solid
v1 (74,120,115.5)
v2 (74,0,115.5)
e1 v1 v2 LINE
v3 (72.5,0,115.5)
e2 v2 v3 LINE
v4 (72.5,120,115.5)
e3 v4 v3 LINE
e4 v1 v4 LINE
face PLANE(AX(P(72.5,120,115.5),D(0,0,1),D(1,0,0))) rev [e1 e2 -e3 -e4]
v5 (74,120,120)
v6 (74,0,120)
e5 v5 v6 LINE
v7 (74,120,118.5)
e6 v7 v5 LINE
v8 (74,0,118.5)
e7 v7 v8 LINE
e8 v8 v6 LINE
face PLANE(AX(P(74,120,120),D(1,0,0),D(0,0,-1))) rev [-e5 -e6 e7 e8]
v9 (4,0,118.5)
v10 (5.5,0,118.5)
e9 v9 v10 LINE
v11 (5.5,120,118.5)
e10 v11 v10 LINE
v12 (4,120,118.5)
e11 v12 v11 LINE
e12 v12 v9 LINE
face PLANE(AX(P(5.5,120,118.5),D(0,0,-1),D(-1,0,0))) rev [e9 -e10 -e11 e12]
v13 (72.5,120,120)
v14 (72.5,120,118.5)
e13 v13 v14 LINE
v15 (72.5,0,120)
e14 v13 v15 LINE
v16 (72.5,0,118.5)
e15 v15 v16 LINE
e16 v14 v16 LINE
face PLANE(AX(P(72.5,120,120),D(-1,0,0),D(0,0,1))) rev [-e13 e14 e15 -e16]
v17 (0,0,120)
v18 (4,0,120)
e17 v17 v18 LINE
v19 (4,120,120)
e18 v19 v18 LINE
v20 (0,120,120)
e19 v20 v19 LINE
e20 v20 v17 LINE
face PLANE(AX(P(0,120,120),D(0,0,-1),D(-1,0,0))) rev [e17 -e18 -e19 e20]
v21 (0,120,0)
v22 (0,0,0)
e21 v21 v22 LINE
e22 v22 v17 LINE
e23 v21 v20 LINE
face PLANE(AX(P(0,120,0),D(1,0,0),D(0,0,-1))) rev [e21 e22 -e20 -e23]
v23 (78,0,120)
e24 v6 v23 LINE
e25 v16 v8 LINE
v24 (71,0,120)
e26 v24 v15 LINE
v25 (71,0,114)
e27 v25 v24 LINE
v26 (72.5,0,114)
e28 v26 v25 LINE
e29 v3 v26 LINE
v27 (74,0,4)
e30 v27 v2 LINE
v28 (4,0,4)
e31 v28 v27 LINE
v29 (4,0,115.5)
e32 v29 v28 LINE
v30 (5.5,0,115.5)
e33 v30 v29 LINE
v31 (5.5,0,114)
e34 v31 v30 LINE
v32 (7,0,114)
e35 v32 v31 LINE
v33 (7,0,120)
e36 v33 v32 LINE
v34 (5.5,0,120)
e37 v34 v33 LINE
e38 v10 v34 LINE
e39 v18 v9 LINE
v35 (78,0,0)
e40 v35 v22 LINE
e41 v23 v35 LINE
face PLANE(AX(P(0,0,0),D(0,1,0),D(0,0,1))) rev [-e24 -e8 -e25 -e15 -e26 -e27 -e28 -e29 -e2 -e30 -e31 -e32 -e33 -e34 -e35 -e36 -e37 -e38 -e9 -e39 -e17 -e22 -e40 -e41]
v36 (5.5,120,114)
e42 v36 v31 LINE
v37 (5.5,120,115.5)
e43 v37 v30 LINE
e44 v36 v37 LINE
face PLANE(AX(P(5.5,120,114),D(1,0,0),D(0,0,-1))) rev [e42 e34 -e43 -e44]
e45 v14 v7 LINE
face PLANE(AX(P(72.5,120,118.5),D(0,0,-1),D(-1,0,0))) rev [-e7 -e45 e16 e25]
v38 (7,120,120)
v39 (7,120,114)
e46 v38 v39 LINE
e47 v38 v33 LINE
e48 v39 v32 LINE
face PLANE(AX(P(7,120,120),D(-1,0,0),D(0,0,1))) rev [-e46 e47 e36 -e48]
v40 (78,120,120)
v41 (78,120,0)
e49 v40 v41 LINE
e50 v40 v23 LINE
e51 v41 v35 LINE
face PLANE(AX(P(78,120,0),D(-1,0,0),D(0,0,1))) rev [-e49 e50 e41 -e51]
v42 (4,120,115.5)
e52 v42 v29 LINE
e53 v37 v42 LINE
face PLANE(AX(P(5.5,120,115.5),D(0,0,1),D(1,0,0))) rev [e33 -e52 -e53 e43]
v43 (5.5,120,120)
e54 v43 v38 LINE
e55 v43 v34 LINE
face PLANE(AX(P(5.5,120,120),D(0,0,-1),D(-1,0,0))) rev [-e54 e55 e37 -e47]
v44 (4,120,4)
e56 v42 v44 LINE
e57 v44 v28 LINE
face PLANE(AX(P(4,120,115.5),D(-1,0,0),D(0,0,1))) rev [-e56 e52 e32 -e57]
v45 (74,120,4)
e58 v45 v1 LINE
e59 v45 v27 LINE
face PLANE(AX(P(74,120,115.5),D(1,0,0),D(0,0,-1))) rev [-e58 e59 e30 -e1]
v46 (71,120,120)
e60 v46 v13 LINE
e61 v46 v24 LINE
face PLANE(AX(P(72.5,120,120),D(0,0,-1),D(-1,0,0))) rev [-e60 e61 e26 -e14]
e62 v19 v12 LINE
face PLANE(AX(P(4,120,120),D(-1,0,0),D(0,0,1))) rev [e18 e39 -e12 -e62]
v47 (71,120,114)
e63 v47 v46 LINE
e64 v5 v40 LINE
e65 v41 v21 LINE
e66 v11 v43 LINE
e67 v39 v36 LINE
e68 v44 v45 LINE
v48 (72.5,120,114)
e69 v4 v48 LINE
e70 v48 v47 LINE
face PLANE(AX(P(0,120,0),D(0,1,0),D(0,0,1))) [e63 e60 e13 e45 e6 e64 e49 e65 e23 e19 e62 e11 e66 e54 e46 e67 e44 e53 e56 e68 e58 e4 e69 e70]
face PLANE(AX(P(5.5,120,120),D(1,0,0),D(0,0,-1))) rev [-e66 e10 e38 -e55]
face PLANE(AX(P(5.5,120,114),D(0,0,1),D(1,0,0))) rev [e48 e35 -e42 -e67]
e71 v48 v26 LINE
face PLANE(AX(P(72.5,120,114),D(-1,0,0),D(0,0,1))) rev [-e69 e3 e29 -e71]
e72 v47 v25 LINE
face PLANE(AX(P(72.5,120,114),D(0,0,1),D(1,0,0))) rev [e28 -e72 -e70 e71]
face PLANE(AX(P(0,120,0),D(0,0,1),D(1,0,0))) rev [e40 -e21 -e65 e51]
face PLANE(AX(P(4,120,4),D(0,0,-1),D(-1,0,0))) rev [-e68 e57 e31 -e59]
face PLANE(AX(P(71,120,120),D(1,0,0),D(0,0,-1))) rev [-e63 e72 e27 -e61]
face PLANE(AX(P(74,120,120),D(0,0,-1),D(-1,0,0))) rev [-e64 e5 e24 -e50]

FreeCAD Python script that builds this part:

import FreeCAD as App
import Part
import Sketcher
from FreeCAD import Vector
Q = App.Units.Quantity

doc = App.newDocument("Part")
body = doc.addObject("PartDesign::Body", "Body")

# Sketch on XZ plane
sketch1 = doc.addObject("Sketcher::SketchObject", "Sketch")
body.addObject(sketch1)
sketch1.AttachmentSupport = (doc.XZ_Plane, [""])
sketch1.MapMode = "FlatFace"
sketch1.addGeometry([
    Part.LineSegment(Vector(74, 120, 0), Vector(78, 120, 0)),  # 0
    Part.LineSegment(Vector(78, 120, 0), Vector(78, 0, 0)),  # 1
    Part.LineSegment(Vector(78, 0, 0), Vector(0, 0, 0)),  # 2
    Part.LineSegment(Vector(0, 0, 0), Vector(0, 120, 0)),  # 3
    Part.LineSegment(Vector(0, 120, 0), Vector(4, 120, 0)),  # 4
    Part.LineSegment(Vector(4, 120, 0), Vector(4, 118.5, 0)),  # 5
    Part.LineSegment(Vector(4, 118.5, 0), Vector(5.5, 118.5, 0)),  # 6
    Part.LineSegment(Vector(5.5, 118.5, 0), Vector(5.5, 120, 0)),  # 7
    Part.LineSegment(Vector(5.5, 120, 0), Vector(7, 120, 0)),  # 8
    Part.LineSegment(Vector(7, 120, 0), Vector(7, 114, 0)),  # 9
    Part.LineSegment(Vector(7, 114, 0), Vector(5.5, 114, 0)),  # 10
    Part.LineSegment(Vector(5.5, 114, 0), Vector(5.5, 115.5, 0)),  # 11
    Part.LineSegment(Vector(5.5, 115.5, 0), Vector(4, 115.5, 0)),  # 12
    Part.LineSegment(Vector(4, 115.5, 0), Vector(4, 4, 0)),  # 13
    Part.LineSegment(Vector(4, 4, 0), Vector(74, 4, 0)),  # 14
    Part.LineSegment(Vector(74, 4, 0), Vector(74, 115.5, 0)),  # 15
    Part.LineSegment(Vector(74, 115.5, 0), Vector(72.5, 115.5, 0)),  # 16
    Part.LineSegment(Vector(72.5, 115.5, 0), Vector(72.5, 114, 0)),  # 17
    Part.LineSegment(Vector(72.5, 114, 0), Vector(71, 114, 0)),  # 18
    Part.LineSegment(Vector(71, 114, 0), Vector(71, 120, 0)),  # 19
    Part.LineSegment(Vector(71, 120, 0), Vector(72.5, 120, 0)),  # 20
    Part.LineSegment(Vector(72.5, 120, 0), Vector(72.5, 118.5, 0)),  # 21
    Part.LineSegment(Vector(72.5, 118.5, 0), Vector(74, 118.5, 0)),  # 22
    Part.LineSegment(Vector(74, 118.5, 0), Vector(74, 120, 0)),  # 23
], False)
sketch1.addConstraint([
    Sketcher.Constraint("Coincident", 0, 2, 1, 1),
    Sketcher.Constraint("Coincident", 1, 2, 2, 1),
    Sketcher.Constraint("Coincident", 2, 2, 3, 1),
    Sketcher.Constraint("Coincident", 3, 2, 4, 1),
    Sketcher.Constraint("Coincident", 4, 2, 5, 1),
    Sketcher.Constraint("Coincident", 5, 2, 6, 1),
    Sketcher.Constraint("Coincident", 6, 2, 7, 1),
    Sketcher.Constraint("Coincident", 7, 2, 8, 1),
    Sketcher.Constraint("Coincident", 8, 2, 9, 1),
    Sketcher.Constraint("Coincident", 9, 2, 10, 1),
    Sketcher.Constraint("Coincident", 10, 2, 11, 1),
    Sketcher.Constraint("Coincident", 11, 2, 12, 1),
    Sketcher.Constraint("Coincident", 12, 2, 13, 1),
    Sketcher.Constraint("Coincident", 13, 2, 14, 1),
    Sketcher.Constraint("Coincident", 14, 2, 15, 1),
    Sketcher.Constraint("Coincident", 15, 2, 16, 1),
    Sketcher.Constraint("Coincident", 16, 2, 17, 1),
    Sketcher.Constraint("Coincident", 17, 2, 18, 1),
    Sketcher.Constraint("Coincident", 18, 2, 19, 1),
    Sketcher.Constraint("Coincident", 19, 2, 20, 1),
    Sketcher.Constraint("Coincident", 20, 2, 21, 1),
    Sketcher.Constraint("Coincident", 21, 2, 22, 1),
    Sketcher.Constraint("Coincident", 22, 2, 23, 1),
    Sketcher.Constraint("Coincident", 23, 2, 0, 1),
    Sketcher.Constraint("Horizontal", 0),
    Sketcher.Constraint("Vertical", 1),
    Sketcher.Constraint("Horizontal", 2),
    Sketcher.Constraint("Vertical", 3),
    Sketcher.Constraint("Horizontal", 4),
    Sketcher.Constraint("Vertical", 5),
    Sketcher.Constraint("Horizontal", 6),
    Sketcher.Constraint("Vertical", 7),
    Sketcher.Constraint("Horizontal", 8),
    Sketcher.Constraint("Vertical", 9),
    Sketcher.Constraint("Horizontal", 10),
    Sketcher.Constraint("Vertical", 11),
    Sketcher.Constraint("Horizontal", 12),
    Sketcher.Constraint("Vertical", 13),
    Sketcher.Constraint("Horizontal", 14),
    Sketcher.Constraint("Vertical", 15),
    Sketcher.Constraint("Horizontal", 16),
    Sketcher.Constraint("Vertical", 17),
    Sketcher.Constraint("Horizontal", 18),
    Sketcher.Constraint("Vertical", 19),
    Sketcher.Constraint("Horizontal", 20),
    Sketcher.Constraint("Vertical", 21),
    Sketcher.Constraint("Horizontal", 22),
    Sketcher.Constraint("Vertical", 23),
    Sketcher.Constraint("Coincident", 2, 2, -1, 1),
    Sketcher.Constraint("Horizontal", 0, 2, 3, 2),
    Sketcher.Constraint("Horizontal", 4, 2, 7, 2),
    Sketcher.Constraint("Horizontal", 12, 2, 15, 2),
    Sketcher.Constraint("Horizontal", 10, 2, 17, 2),
    Sketcher.Constraint("Horizontal", 8, 2, 19, 2),
    Sketcher.Constraint("Horizontal", 6, 2, 21, 2),
    Sketcher.Constraint("Vertical", 7, 2, 10, 2),
    Sketcher.Constraint("Vertical", 5, 2, 12, 2),
    Sketcher.Constraint("Vertical", 17, 2, 20, 2),
    Sketcher.Constraint("Vertical", 15, 2, 22, 2),
    Sketcher.Constraint("Equal", 0, 4),
    Sketcher.Constraint("Equal", 6, 8),
    Sketcher.Constraint("Equal", 12, 16),
    Sketcher.Constraint("Equal", 16, 18),
    Sketcher.Constraint("Equal", 22, 5),
    Sketcher.Constraint("Equal", 7, 11),
    Sketcher.Constraint("DistanceX", 0, 1, 0, 2, Q("4 mm")),
    Sketcher.Constraint("DistanceX", 2, 2, 2, 1, Q("78 mm")),
    Sketcher.Constraint("DistanceY", 1, 2, 1, 1, Q("120 mm")),
    Sketcher.Constraint("DistanceY", 9, 2, 9, 1, Q("6 mm")),
    Sketcher.Constraint("DistanceX", 6, 1, 6, 2, Q("1.5 mm")),
    Sketcher.Constraint("DistanceY", 13, 2, 13, 1, Q("111.5 mm")),
])
pad1 = doc.addObject("PartDesign::Pad", "Pad")
body.addObject(pad1)
pad1.Profile = sketch1
pad1.Length = 120
pad1.Reversed = True

doc.recompute()
